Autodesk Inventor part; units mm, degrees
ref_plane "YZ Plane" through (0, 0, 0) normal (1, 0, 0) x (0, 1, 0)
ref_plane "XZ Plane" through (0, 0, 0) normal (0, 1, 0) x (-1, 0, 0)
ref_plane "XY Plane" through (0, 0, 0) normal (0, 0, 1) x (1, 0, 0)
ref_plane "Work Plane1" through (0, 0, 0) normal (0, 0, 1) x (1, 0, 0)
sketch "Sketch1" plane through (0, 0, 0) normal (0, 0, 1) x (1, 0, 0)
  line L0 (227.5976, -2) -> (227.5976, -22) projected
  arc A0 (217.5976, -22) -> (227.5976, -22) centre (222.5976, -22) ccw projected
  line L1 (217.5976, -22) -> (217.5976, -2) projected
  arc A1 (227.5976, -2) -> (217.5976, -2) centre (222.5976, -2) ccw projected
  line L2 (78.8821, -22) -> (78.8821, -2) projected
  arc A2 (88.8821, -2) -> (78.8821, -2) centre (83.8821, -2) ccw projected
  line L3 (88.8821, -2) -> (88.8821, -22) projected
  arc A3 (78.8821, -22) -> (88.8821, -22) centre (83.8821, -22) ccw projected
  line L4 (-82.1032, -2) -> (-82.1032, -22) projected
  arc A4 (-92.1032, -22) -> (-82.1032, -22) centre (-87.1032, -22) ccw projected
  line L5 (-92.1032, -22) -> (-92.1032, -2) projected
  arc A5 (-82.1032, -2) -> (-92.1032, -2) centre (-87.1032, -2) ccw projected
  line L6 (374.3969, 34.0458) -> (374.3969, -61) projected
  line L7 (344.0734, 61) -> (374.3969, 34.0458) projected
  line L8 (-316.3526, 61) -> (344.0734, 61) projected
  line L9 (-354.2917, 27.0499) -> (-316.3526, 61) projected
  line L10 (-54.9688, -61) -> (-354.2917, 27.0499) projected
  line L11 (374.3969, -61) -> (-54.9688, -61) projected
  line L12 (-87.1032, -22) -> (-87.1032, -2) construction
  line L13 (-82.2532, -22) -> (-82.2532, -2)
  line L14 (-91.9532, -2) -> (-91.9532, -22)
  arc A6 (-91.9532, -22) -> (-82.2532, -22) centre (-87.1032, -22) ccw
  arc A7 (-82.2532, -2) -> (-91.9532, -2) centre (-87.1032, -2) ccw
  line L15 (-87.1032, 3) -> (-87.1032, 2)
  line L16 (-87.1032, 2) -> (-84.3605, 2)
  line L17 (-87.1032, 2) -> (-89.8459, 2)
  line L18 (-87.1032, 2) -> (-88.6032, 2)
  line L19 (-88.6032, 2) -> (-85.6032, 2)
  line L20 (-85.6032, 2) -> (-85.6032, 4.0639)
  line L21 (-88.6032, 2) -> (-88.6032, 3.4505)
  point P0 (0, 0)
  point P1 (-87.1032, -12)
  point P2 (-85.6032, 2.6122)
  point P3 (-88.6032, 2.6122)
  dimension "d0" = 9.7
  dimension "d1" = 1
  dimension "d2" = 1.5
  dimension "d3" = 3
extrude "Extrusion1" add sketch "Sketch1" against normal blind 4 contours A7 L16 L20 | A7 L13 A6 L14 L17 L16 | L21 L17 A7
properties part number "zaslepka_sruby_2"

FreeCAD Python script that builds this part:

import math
import FreeCAD as App
import Part
import Sketcher

V = App.Vector
Q = App.Units.Quantity

doc = App.newDocument("Part")
body = doc.addObject("PartDesign::Body", "Body")

# Sketch on XY plane
sketch1 = doc.addObject("Sketcher::SketchObject", "Sketch")
body.addObject(sketch1)
sketch1.AttachmentSupport = (doc.XY_Plane, [""])
sketch1.MapMode = "FlatFace"
sketch1.addGeometry([
    Part.LineSegment(V(-85.6032, 2.612212, 0), V(-85.6032, 2, 0)),  # 0
    Part.LineSegment(V(-85.6032, 2, 0), V(-88.6032, 2, 0)),  # 1
    Part.LineSegment(V(-88.6032, 2, 0), V(-88.6032, 2.612212, 0)),  # 2
    Part.ArcOfCircle(Part.Circle(V(-87.1032, -2, 0), V(0, 0, 1), 4.85), math.radians(108.015746), math.radians(180)),  # 3
    Part.LineSegment(V(-91.9532, -2, 0), V(-91.9532, -22, 0)),  # 4
    Part.ArcOfCircle(Part.Circle(V(-87.1032, -22, 0), V(0, 0, 1), 4.85), math.radians(180), math.radians(360)),  # 5
    Part.LineSegment(V(-82.2532, -22, 0), V(-82.2532, -2, 0)),  # 6
    Part.ArcOfCircle(Part.Circle(V(-87.1032, -2, 0), V(0, 0, 1), 4.85), math.radians(0), math.radians(71.984254)),  # 7
], False)
sketch1.addConstraint([
    Sketcher.Constraint("Coincident", 0, 2, 1, 1),
    Sketcher.Constraint("Coincident", 1, 2, 2, 1),
    Sketcher.Constraint("Coincident", 2, 2, 3, 1),
    Sketcher.Constraint("Tangent", 3, 2, 4, 1),
    Sketcher.Constraint("Tangent", 4, 2, 5, 1),
    Sketcher.Constraint("Tangent", 5, 2, 6, 1),
    Sketcher.Constraint("Tangent", 6, 2, 7, 1),
    Sketcher.Constraint("Coincident", 7, 2, 0, 1),
    Sketcher.Constraint("Vertical", 0),
    Sketcher.Constraint("Horizontal", 1),
    Sketcher.Constraint("Vertical", 2),
    Sketcher.Constraint("Vertical", 4),
    Sketcher.Constraint("Vertical", 6),
    Sketcher.Constraint("Coincident", 7, 3, 3, 3),
    Sketcher.Constraint("Equal", 3, 5),
    Sketcher.Constraint("Horizontal", 2, 2, 7, 2),
    Sketcher.Constraint("DistanceX", 1, 2, 1, 1, Q("3 mm")),
    Sketcher.Constraint("Radius", 3, Q("4.85 mm")),
    Sketcher.Constraint("DistanceY", 4, 2, 4, 1, Q("20 mm")),
    Sketcher.Constraint("DistanceY", 3, 3, -1, 1, Q("2 mm")),
    Sketcher.Constraint("DistanceY", -1, 1, 0, 2, Q("2 mm")),
    Sketcher.Constraint("DistanceX", 3, 3, -1, 1, Q("87.1032 mm")),
])
pad1 = doc.addObject("PartDesign::Pad", "Pad")
body.addObject(pad1)
pad1.Profile = sketch1
pad1.Length = 4
pad1.Reversed = True

doc.recompute()
